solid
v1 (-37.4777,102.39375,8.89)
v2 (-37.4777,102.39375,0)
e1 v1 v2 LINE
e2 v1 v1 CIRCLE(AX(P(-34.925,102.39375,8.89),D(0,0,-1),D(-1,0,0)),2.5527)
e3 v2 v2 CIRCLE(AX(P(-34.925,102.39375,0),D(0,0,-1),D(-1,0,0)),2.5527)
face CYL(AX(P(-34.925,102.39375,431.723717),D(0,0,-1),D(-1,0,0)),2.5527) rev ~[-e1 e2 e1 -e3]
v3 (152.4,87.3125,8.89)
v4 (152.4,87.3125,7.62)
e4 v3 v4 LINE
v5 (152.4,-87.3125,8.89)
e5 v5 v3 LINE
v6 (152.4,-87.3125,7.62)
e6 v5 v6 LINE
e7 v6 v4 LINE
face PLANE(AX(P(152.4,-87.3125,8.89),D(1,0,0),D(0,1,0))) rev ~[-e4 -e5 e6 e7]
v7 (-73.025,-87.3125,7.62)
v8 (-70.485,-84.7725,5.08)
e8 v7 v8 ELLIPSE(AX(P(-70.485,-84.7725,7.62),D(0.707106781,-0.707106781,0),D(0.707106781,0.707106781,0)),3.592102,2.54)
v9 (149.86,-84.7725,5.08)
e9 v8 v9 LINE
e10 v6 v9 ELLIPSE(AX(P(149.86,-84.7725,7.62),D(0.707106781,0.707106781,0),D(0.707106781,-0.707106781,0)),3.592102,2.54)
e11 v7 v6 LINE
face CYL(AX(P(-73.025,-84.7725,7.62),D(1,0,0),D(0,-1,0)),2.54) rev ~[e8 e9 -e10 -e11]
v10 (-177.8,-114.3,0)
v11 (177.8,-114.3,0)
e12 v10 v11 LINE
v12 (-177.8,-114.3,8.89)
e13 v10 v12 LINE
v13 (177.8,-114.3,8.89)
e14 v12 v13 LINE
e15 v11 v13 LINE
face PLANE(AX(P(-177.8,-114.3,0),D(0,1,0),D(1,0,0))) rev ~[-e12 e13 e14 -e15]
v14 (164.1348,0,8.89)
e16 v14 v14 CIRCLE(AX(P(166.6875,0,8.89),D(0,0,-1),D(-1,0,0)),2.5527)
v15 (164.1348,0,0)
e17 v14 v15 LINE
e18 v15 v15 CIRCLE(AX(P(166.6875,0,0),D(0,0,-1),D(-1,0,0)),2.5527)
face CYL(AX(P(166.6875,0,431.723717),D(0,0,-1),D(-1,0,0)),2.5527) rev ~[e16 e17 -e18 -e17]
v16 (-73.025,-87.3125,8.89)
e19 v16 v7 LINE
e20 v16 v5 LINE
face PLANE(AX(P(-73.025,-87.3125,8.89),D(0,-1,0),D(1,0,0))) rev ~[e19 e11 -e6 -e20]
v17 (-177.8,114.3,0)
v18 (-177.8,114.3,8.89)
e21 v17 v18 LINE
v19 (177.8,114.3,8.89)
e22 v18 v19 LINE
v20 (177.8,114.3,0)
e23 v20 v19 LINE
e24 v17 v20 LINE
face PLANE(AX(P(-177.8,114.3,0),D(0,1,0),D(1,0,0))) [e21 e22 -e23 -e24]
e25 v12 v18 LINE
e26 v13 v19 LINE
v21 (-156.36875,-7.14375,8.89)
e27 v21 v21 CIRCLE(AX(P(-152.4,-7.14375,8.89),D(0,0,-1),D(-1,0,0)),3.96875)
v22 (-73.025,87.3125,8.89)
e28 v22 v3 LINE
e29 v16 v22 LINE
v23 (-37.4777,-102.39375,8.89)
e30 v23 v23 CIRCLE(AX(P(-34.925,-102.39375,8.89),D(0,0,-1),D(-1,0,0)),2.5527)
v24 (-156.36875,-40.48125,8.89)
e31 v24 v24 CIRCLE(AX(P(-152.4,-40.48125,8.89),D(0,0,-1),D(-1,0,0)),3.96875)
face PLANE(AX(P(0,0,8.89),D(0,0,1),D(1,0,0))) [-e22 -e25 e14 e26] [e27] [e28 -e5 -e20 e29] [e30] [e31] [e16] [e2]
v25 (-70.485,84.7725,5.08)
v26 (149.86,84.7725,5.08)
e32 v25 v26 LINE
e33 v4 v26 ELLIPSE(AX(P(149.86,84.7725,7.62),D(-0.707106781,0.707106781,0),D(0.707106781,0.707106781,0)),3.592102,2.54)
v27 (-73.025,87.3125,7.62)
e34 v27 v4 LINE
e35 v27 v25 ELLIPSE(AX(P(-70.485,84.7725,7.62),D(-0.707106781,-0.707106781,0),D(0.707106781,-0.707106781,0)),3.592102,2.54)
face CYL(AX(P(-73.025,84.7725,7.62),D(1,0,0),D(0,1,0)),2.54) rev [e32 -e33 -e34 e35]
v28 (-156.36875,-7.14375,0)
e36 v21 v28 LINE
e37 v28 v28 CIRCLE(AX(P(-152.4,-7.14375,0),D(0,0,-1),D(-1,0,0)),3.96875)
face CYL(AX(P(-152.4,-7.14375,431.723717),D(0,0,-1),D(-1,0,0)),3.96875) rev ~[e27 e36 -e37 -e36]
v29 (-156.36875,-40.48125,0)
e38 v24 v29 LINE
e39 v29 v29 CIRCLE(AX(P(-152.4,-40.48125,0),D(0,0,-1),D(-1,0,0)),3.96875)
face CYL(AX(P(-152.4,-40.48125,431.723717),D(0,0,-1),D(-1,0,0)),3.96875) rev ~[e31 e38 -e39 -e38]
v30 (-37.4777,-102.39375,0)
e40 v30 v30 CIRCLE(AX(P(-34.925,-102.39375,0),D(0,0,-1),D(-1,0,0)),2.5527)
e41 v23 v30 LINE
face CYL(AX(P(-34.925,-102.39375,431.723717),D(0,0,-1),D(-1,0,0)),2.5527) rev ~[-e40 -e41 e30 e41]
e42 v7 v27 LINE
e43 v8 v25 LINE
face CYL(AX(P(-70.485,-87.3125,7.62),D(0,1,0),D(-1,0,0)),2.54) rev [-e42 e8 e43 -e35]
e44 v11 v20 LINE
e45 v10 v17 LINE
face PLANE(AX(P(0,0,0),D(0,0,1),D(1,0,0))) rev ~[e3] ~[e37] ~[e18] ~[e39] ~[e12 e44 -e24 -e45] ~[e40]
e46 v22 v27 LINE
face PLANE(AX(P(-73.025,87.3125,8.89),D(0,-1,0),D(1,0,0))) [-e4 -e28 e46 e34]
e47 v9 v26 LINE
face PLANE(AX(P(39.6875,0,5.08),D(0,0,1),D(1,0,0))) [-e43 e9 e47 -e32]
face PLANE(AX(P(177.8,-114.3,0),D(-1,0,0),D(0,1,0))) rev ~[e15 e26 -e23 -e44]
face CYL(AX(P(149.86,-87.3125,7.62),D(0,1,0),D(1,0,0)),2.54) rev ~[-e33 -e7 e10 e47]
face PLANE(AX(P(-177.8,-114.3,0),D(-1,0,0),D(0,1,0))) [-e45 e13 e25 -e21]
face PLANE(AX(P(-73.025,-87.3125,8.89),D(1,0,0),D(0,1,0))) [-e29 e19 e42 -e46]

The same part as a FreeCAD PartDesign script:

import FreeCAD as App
import Part
import Sketcher

V = App.Vector
Q = App.Units.Quantity


def edges_at(feature, points):
    """Names of the edges that pass closest to the given points."""
    edges = feature.Shape.Edges
    near = lambda p: min(range(len(edges)), key=lambda i: edges[i].distToShape(Part.Vertex(*p))[0])
    return sorted({f"Edge{near(p) + 1}" for p in points})

doc = App.newDocument("Part")
params = doc.addObject("Spreadsheet::Sheet", "Params")
for row, (alias, value) in enumerate([
    ("sketch1_width", "14 in"),
    ("sketch1_height", "9 in"),
    ("pad1_length", "0.35 in"),
    ("sketch2_width", "8.875 in"),
    ("sketch2_height", "6.875 in"),
    ("pocket1_length", "0.15 in"),
    ("fillet_radius", "0.1 in"),
    ("sketch3_diameter", "0.201 in"),
    ("hole_diameter", "0.201 in"),
    ("sketch4_diameter", "0.3125 in"),
    ("hole2_diameter", "0.3125 in"),
], start=1):
    params.set(f"A{row}", alias)
    params.set(f"B{row}", "=" + value)
    params.setAlias(f"B{row}", alias)

body = doc.addObject("PartDesign::Body", "Body")

sketch1 = doc.addObject("Sketcher::SketchObject", "Sketch")
body.addObject(sketch1)
sketch1.AttachmentSupport = (doc.XY_Plane, [""])
sketch1.MapMode = "FlatFace"
sketch1.addGeometry(Part.LineSegment(V(-178, 114, 0), V(-178, -114, 0)), False)
sketch1.addGeometry(Part.LineSegment(V(-178, -114, 0), V(178, -114, 0)), False)
sketch1.addGeometry(Part.LineSegment(V(178, -114, 0), V(178, 114, 0)), False)
sketch1.addGeometry(Part.LineSegment(V(178, 114, 0), V(-178, 114, 0)), False)
sketch1.addConstraint(Sketcher.Constraint("Coincident", 0, 2, 1, 1))
sketch1.addConstraint(Sketcher.Constraint("Coincident", 1, 2, 2, 1))
sketch1.addConstraint(Sketcher.Constraint("Coincident", 2, 2, 3, 1))
sketch1.addConstraint(Sketcher.Constraint("Coincident", 3, 2, 0, 1))
sketch1.addConstraint(Sketcher.Constraint("Vertical", 0))
sketch1.addConstraint(Sketcher.Constraint("Horizontal", 1))
sketch1.addConstraint(Sketcher.Constraint("Vertical", 2))
sketch1.addConstraint(Sketcher.Constraint("Horizontal", 3))
sketch1.addConstraint(Sketcher.Constraint("Symmetric", 0, 2, 2, 2, -1, 1))
sketch1.addConstraint(Sketcher.Constraint("DistanceX", 1, 1, 1, 2, Q("14 in")))
sketch1.addConstraint(Sketcher.Constraint("DistanceY", 0, 2, 0, 1, Q("9 in")))
sketch1.setExpression("Constraints[9]", "Params.sketch1_width")
sketch1.setExpression("Constraints[10]", "Params.sketch1_height")
pad1 = doc.addObject("PartDesign::Pad", "Pad")
body.addObject(pad1)
pad1.Profile = sketch1
pad1.setExpression("Length", "Params.pad1_length")

sketch2 = doc.addObject("Sketcher::SketchObject", "Sketch001")
body.addObject(sketch2)
sketch2.AttachmentSupport = (doc.XY_Plane, [""])
sketch2.MapMode = "FlatFace"
sketch2.AttachmentOffset = App.Placement(V(0, 0, 0.35 * 25.4), App.Rotation())
sketch2.addGeometry(Part.LineSegment(V(-73, 87, 0), V(-73, -87, 0)), False)
sketch2.addGeometry(Part.LineSegment(V(-73, -87, 0), V(152, -87, 0)), False)
sketch2.addGeometry(Part.LineSegment(V(152, -87, 0), V(152, 87, 0)), False)
sketch2.addGeometry(Part.LineSegment(V(152, 87, 0), V(-73, 87, 0)), False)
sketch2.addConstraint(Sketcher.Constraint("Coincident", 0, 2, 1, 1))
sketch2.addConstraint(Sketcher.Constraint("Coincident", 1, 2, 2, 1))
sketch2.addConstraint(Sketcher.Constraint("Coincident", 2, 2, 3, 1))
sketch2.addConstraint(Sketcher.Constraint("Coincident", 3, 2, 0, 1))
sketch2.addConstraint(Sketcher.Constraint("Vertical", 0))
sketch2.addConstraint(Sketcher.Constraint("Horizontal", 1))
sketch2.addConstraint(Sketcher.Constraint("Vertical", 2))
sketch2.addConstraint(Sketcher.Constraint("Horizontal", 3))
sketch2.addConstraint(Sketcher.Constraint("DistanceX", -1, 1, 1, 2, Q("6 in")))
sketch2.addConstraint(Sketcher.Constraint("DistanceX", 1, 1, 1, 2, Q("8.875 in")))
sketch2.addConstraint(Sketcher.Constraint("DistanceY", 0, 2, 0, 1, Q("6.875 in")))
sketch2.addConstraint(Sketcher.Constraint("DistanceY", 0, 2, -1, 1, Q("3.4375 in")))
sketch2.setExpression("Constraints[9]", "Params.sketch2_width")
sketch2.setExpression("Constraints[10]", "Params.sketch2_height")
pocket1 = doc.addObject("PartDesign::Pocket", "Pocket")
body.addObject(pocket1)
pocket1.Profile = sketch2
pocket1.setExpression("Length", "Params.pocket1_length")
doc.recompute()

fillet = doc.addObject("PartDesign::Fillet", "Fillet")
body.addObject(fillet)
fillet.Base = (pocket1, edges_at(pocket1, [
    (39.688, -87.312, 5.08),
    (152.4, 0, 5.08),
    (39.688, 87.312, 5.08),
    (-73.025, 0, 5.08),
]))
fillet.setExpression("Radius", "Params.fillet_radius")

sketch3 = doc.addObject("Sketcher::SketchObject", "Sketch002")
body.addObject(sketch3)
sketch3.AttachmentSupport = (doc.XY_Plane, [""])
sketch3.MapMode = "FlatFace"
sketch3.AttachmentOffset = App.Placement(V(0, 0, 0.35 * 25.4), App.Rotation())
sketch3.addGeometry(Part.Circle(V(-34.9, -102.4, 0), V(0, 0, 1), 2.6), False)
sketch3.addGeometry(Part.Circle(V(-34.9, 102.4, 0), V(0, 0, 1), 2.6), False)
sketch3.addGeometry(Part.Circle(V(166.7, 0, 0), V(0, 0, 1), 2.6), False)
sketch3.addConstraint(Sketcher.Constraint("Equal", 0, 1))
sketch3.addConstraint(Sketcher.Constraint("Equal", 1, 2))
sketch3.addConstraint(Sketcher.Constraint("Symmetric", 0, 3, 1, 3, -1))
sketch3.addConstraint(Sketcher.Constraint("PointOnObject", 2, 3, -1))
sketch3.addConstraint(Sketcher.Constraint("Diameter", 0, Q("0.201 in")))
sketch3.addConstraint(Sketcher.Constraint("DistanceX", 0, 3, -1, 1, Q("1.375 in")))
sketch3.addConstraint(Sketcher.Constraint("DistanceY", 0, 3, -1, 1, Q("4.03125 in")))
sketch3.addConstraint(Sketcher.Constraint("DistanceX", -1, 1, 2, 3, Q("6.5625 in")))
sketch3.setExpression("Constraints[4]", "Params.sketch3_diameter")
doc.recompute()
hole = doc.addObject("PartDesign::Hole", "Hole")
body.addObject(hole)
hole.Profile = sketch3
hole.ThreadType = "None"
hole.setExpression("Diameter", "Params.hole_diameter")
hole.DepthType = "ThroughAll"

sketch4 = doc.addObject("Sketcher::SketchObject", "Sketch003")
body.addObject(sketch4)
sketch4.AttachmentSupport = (doc.XY_Plane, [""])
sketch4.MapMode = "FlatFace"
sketch4.AttachmentOffset = App.Placement(V(0, 0, 0.35 * 25.4), App.Rotation())
sketch4.addGeometry(Part.Circle(V(-152.4, -7.1, 0), V(0, 0, 1), 4), False)
sketch4.addGeometry(Part.Circle(V(-152.4, -40.5, 0), V(0, 0, 1), 4), False)
sketch4.addConstraint(Sketcher.Constraint("Equal", 0, 1))
sketch4.addConstraint(Sketcher.Constraint("Vertical", 0, 3, 1, 3))
sketch4.addConstraint(Sketcher.Constraint("Diameter", 0, Q("0.3125 in")))
sketch4.addConstraint(Sketcher.Constraint("DistanceX", 0, 3, -1, 1, Q("6 in")))
sketch4.addConstraint(Sketcher.Constraint("DistanceY", 0, 3, -1, 1, Q("0.28125 in")))
sketch4.addConstraint(Sketcher.Constraint("DistanceY", 1, 3, -1, 1, Q("1.59375 in")))
sketch4.setExpression("Constraints[2]", "Params.sketch4_diameter")
doc.recompute()
hole2 = doc.addObject("PartDesign::Hole", "Hole001")
body.addObject(hole2)
hole2.Profile = sketch4
hole2.ThreadType = "None"
hole2.setExpression("Diameter", "Params.hole2_diameter")
hole2.DepthType = "ThroughAll"

doc.recompute()
